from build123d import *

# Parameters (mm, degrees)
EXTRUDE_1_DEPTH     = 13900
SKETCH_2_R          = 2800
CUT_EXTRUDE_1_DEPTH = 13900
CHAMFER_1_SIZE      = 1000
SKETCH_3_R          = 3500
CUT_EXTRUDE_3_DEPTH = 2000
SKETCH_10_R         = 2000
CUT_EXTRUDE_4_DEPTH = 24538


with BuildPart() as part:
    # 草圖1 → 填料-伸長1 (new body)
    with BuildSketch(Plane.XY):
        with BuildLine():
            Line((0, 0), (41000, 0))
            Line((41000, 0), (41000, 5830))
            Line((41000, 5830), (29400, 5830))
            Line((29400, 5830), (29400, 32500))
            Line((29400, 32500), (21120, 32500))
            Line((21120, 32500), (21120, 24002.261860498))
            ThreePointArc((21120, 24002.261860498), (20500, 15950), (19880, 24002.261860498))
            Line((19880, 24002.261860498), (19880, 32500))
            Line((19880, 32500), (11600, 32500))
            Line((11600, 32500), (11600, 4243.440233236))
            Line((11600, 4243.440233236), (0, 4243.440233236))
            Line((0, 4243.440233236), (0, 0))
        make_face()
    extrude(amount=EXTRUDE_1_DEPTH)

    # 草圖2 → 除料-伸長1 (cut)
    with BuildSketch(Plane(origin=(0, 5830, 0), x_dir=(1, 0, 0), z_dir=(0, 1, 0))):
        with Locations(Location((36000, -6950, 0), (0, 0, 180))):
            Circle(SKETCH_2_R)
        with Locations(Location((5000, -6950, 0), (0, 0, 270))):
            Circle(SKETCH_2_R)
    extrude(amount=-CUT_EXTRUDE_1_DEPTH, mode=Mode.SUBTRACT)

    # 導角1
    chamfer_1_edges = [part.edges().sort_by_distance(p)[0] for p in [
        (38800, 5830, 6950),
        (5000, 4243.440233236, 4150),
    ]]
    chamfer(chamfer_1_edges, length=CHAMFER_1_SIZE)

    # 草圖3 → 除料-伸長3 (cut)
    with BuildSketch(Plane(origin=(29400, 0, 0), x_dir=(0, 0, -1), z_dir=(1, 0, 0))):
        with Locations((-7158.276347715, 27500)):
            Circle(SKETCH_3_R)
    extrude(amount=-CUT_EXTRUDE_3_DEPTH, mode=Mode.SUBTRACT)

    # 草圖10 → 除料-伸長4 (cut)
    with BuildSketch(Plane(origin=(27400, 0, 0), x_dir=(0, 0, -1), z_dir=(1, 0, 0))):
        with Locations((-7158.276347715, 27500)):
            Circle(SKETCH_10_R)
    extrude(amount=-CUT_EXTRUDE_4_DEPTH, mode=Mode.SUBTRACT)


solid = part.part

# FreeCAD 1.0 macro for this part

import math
import FreeCAD as App
import Part
import Sketcher
from FreeCAD import Vector
Q = App.Units.Quantity


def edges_at(feature, points):
    """Names of the edges that pass closest to the given points."""
    edges = feature.Shape.Edges
    near = lambda p: min(range(len(edges)), key=lambda i: edges[i].distToShape(Part.Vertex(*p))[0])
    return sorted({f"Edge{near(p) + 1}" for p in points})

doc = App.newDocument("Part")
body = doc.addObject("PartDesign::Body", "Body")

sketch1 = body.newObject("Sketcher::SketchObject", "Sketch")
sketch1.AttachmentSupport = (doc.getObject("XY_Plane"), [""])
sketch1.MapMode = "FlatFace"
sketch1.addGeometry([
    Part.LineSegment(Vector(0, 0, 0), Vector(41000, 0, 0)),
    Part.LineSegment(Vector(41000, 0, 0), Vector(41000, 5830, 0)),
    Part.LineSegment(Vector(41000, 5830, 0), Vector(29400, 5830, 0)),
    Part.LineSegment(Vector(29400, 5830, 0), Vector(29400, 32500, 0)),
    Part.LineSegment(Vector(29400, 32500, 0), Vector(21120, 32500, 0)),
    Part.LineSegment(Vector(21120, 32500, 0), Vector(21120, 24002, 0)),
    Part.ArcOfCircle(Part.Circle(Vector(20500, 20000, 0), Vector(0, 0, 1), 4050), math.radians(99), math.radians(441)),
    Part.LineSegment(Vector(19880, 24002, 0), Vector(19880, 32500, 0)),
    Part.LineSegment(Vector(19880, 32500, 0), Vector(11600, 32500, 0)),
    Part.LineSegment(Vector(11600, 32500, 0), Vector(11600, 4243, 0)),
    Part.LineSegment(Vector(11600, 4243, 0), Vector(0, 4243, 0)),
    Part.LineSegment(Vector(0, 4243, 0), Vector(0, 0, 0)),
], False)
sketch1.addConstraint([
    Sketcher.Constraint("Coincident", 0, 2, 1, 1),
    Sketcher.Constraint("Coincident", 1, 2, 2, 1),
    Sketcher.Constraint("Coincident", 2, 2, 3, 1),
    Sketcher.Constraint("Coincident", 3, 2, 4, 1),
    Sketcher.Constraint("Coincident", 4, 2, 5, 1),
    Sketcher.Constraint("Coincident", 5, 2, 6, 2),
    Sketcher.Constraint("Coincident", 6, 1, 7, 1),
    Sketcher.Constraint("Coincident", 7, 2, 8, 1),
    Sketcher.Constraint("Coincident", 8, 2, 9, 1),
    Sketcher.Constraint("Coincident", 9, 2, 10, 1),
    Sketcher.Constraint("Coincident", 10, 2, 11, 1),
    Sketcher.Constraint("Coincident", 11, 2, 0, 1),
    Sketcher.Constraint("Horizontal", 0),
    Sketcher.Constraint("Vertical", 1),
    Sketcher.Constraint("Horizontal", 2),
    Sketcher.Constraint("Vertical", 3),
    Sketcher.Constraint("Horizontal", 4),
    Sketcher.Constraint("Vertical", 5),
    Sketcher.Constraint("Vertical", 7),
    Sketcher.Constraint("Horizontal", 8),
    Sketcher.Constraint("Vertical", 9),
    Sketcher.Constraint("Horizontal", 10),
    Sketcher.Constraint("Vertical", 11),
    Sketcher.Constraint("Coincident", 11, 2, -1, 1),
    Sketcher.Constraint("Horizontal", 4, 2, 7, 2),
    Sketcher.Constraint("Equal", 4, 8),
    Sketcher.Constraint("Equal", 2, 10),
    Sketcher.Constraint("Equal", 5, 7),
    Sketcher.Constraint("Radius", 6, Q("4050 mm")),
    Sketcher.Constraint("DistanceX", 0, 1, 0, 2, Q("41000 mm")),
    Sketcher.Constraint("DistanceX", 2, 2, 2, 1, Q("11600 mm")),
    Sketcher.Constraint("DistanceX", 4, 2, 4, 1, Q("8280 mm")),
    Sketcher.Constraint("DistanceY", 1, 1, 1, 2, Q("5830 mm")),
    Sketcher.Constraint("DistanceY", 3, 1, 3, 2, Q("26670 mm")),
    Sketcher.Constraint("DistanceY", -1, 1, 6, 3, Q("20000 mm")),
    Sketcher.Constraint("DistanceY", 9, 2, 9, 1, Q("28256.559767 mm")),
])
pad1 = body.newObject("PartDesign::Pad", "Pad")
pad1.Profile = sketch1
pad1.Length = 13900

sketch2 = body.newObject("Sketcher::SketchObject", "Sketch001")
sketch2.AttachmentSupport = (doc.getObject("XZ_Plane"), [""])
sketch2.MapMode = "FlatFace"
sketch2.AttachmentOffset = App.Placement(Vector(0, 0, -5830), App.Rotation())
sketch2.addGeometry([
    Part.Circle(Vector(36000, 6950, 0), Vector(0, 0, 1), 2800),
    Part.Circle(Vector(5000, 6950, 0), Vector(0, 0, 1), 2800),
], False)
sketch2.addConstraint([
    Sketcher.Constraint("Equal", 0, 1),
    Sketcher.Constraint("Horizontal", 0, 3, 1, 3),
    Sketcher.Constraint("Diameter", 0, Q("5600 mm")),
    Sketcher.Constraint("DistanceX", -1, 1, 0, 3, Q("36000 mm")),
    Sketcher.Constraint("DistanceY", -1, 1, 0, 3, Q("6950 mm")),
    Sketcher.Constraint("DistanceX", -1, 1, 1, 3, Q("5000 mm")),
])
pocket1 = body.newObject("PartDesign::Pocket", "Pocket")
pocket1.Profile = sketch2
pocket1.Length = 13900
pocket1.Reversed = True
doc.recompute()

chamfer = body.newObject("PartDesign::Chamfer", "Chamfer")
chamfer.Base = (pocket1, edges_at(pocket1, [(38800, 5830, 6950), (5000, 4243.44, 4150)]))
chamfer.Size = 1000

sketch3 = body.newObject("Sketcher::SketchObject", "Sketch002")
sketch3.AttachmentSupport = (doc.getObject("YZ_Plane"), [""])
sketch3.MapMode = "FlatFace"
sketch3.AttachmentOffset = App.Placement(Vector(0, 0, 29400), App.Rotation())
sketch3.addGeometry(Part.Circle(Vector(27500, 7158, 0), Vector(0, 0, 1), 3500), False)
sketch3.addConstraint([
    Sketcher.Constraint("Diameter", 0, Q("7000 mm")),
    Sketcher.Constraint("DistanceX", -1, 1, 0, 3, Q("27500 mm")),
    Sketcher.Constraint("DistanceY", -1, 1, 0, 3, Q("7158.276348 mm")),
])
pocket2 = body.newObject("PartDesign::Pocket", "Pocket001")
pocket2.Profile = sketch3
pocket2.Length = 2000

sketch4 = body.newObject("Sketcher::SketchObject", "Sketch003")
sketch4.AttachmentSupport = (doc.getObject("YZ_Plane"), [""])
sketch4.MapMode = "FlatFace"
sketch4.AttachmentOffset = App.Placement(Vector(0, 0, 27400), App.Rotation())
sketch4.addGeometry(Part.Circle(Vector(27500, 7158, 0), Vector(0, 0, 1), 2000), False)
sketch4.addConstraint([
    Sketcher.Constraint("Diameter", 0, Q("4000 mm")),
    Sketcher.Constraint("DistanceX", -1, 1, 0, 3, Q("27500 mm")),
    Sketcher.Constraint("DistanceY", -1, 1, 0, 3, Q("7158.276348 mm")),
])
pocket3 = body.newObject("PartDesign::Pocket", "Pocket002")
pocket3.Profile = sketch4
pocket3.Length = 24538

doc.recompute()
